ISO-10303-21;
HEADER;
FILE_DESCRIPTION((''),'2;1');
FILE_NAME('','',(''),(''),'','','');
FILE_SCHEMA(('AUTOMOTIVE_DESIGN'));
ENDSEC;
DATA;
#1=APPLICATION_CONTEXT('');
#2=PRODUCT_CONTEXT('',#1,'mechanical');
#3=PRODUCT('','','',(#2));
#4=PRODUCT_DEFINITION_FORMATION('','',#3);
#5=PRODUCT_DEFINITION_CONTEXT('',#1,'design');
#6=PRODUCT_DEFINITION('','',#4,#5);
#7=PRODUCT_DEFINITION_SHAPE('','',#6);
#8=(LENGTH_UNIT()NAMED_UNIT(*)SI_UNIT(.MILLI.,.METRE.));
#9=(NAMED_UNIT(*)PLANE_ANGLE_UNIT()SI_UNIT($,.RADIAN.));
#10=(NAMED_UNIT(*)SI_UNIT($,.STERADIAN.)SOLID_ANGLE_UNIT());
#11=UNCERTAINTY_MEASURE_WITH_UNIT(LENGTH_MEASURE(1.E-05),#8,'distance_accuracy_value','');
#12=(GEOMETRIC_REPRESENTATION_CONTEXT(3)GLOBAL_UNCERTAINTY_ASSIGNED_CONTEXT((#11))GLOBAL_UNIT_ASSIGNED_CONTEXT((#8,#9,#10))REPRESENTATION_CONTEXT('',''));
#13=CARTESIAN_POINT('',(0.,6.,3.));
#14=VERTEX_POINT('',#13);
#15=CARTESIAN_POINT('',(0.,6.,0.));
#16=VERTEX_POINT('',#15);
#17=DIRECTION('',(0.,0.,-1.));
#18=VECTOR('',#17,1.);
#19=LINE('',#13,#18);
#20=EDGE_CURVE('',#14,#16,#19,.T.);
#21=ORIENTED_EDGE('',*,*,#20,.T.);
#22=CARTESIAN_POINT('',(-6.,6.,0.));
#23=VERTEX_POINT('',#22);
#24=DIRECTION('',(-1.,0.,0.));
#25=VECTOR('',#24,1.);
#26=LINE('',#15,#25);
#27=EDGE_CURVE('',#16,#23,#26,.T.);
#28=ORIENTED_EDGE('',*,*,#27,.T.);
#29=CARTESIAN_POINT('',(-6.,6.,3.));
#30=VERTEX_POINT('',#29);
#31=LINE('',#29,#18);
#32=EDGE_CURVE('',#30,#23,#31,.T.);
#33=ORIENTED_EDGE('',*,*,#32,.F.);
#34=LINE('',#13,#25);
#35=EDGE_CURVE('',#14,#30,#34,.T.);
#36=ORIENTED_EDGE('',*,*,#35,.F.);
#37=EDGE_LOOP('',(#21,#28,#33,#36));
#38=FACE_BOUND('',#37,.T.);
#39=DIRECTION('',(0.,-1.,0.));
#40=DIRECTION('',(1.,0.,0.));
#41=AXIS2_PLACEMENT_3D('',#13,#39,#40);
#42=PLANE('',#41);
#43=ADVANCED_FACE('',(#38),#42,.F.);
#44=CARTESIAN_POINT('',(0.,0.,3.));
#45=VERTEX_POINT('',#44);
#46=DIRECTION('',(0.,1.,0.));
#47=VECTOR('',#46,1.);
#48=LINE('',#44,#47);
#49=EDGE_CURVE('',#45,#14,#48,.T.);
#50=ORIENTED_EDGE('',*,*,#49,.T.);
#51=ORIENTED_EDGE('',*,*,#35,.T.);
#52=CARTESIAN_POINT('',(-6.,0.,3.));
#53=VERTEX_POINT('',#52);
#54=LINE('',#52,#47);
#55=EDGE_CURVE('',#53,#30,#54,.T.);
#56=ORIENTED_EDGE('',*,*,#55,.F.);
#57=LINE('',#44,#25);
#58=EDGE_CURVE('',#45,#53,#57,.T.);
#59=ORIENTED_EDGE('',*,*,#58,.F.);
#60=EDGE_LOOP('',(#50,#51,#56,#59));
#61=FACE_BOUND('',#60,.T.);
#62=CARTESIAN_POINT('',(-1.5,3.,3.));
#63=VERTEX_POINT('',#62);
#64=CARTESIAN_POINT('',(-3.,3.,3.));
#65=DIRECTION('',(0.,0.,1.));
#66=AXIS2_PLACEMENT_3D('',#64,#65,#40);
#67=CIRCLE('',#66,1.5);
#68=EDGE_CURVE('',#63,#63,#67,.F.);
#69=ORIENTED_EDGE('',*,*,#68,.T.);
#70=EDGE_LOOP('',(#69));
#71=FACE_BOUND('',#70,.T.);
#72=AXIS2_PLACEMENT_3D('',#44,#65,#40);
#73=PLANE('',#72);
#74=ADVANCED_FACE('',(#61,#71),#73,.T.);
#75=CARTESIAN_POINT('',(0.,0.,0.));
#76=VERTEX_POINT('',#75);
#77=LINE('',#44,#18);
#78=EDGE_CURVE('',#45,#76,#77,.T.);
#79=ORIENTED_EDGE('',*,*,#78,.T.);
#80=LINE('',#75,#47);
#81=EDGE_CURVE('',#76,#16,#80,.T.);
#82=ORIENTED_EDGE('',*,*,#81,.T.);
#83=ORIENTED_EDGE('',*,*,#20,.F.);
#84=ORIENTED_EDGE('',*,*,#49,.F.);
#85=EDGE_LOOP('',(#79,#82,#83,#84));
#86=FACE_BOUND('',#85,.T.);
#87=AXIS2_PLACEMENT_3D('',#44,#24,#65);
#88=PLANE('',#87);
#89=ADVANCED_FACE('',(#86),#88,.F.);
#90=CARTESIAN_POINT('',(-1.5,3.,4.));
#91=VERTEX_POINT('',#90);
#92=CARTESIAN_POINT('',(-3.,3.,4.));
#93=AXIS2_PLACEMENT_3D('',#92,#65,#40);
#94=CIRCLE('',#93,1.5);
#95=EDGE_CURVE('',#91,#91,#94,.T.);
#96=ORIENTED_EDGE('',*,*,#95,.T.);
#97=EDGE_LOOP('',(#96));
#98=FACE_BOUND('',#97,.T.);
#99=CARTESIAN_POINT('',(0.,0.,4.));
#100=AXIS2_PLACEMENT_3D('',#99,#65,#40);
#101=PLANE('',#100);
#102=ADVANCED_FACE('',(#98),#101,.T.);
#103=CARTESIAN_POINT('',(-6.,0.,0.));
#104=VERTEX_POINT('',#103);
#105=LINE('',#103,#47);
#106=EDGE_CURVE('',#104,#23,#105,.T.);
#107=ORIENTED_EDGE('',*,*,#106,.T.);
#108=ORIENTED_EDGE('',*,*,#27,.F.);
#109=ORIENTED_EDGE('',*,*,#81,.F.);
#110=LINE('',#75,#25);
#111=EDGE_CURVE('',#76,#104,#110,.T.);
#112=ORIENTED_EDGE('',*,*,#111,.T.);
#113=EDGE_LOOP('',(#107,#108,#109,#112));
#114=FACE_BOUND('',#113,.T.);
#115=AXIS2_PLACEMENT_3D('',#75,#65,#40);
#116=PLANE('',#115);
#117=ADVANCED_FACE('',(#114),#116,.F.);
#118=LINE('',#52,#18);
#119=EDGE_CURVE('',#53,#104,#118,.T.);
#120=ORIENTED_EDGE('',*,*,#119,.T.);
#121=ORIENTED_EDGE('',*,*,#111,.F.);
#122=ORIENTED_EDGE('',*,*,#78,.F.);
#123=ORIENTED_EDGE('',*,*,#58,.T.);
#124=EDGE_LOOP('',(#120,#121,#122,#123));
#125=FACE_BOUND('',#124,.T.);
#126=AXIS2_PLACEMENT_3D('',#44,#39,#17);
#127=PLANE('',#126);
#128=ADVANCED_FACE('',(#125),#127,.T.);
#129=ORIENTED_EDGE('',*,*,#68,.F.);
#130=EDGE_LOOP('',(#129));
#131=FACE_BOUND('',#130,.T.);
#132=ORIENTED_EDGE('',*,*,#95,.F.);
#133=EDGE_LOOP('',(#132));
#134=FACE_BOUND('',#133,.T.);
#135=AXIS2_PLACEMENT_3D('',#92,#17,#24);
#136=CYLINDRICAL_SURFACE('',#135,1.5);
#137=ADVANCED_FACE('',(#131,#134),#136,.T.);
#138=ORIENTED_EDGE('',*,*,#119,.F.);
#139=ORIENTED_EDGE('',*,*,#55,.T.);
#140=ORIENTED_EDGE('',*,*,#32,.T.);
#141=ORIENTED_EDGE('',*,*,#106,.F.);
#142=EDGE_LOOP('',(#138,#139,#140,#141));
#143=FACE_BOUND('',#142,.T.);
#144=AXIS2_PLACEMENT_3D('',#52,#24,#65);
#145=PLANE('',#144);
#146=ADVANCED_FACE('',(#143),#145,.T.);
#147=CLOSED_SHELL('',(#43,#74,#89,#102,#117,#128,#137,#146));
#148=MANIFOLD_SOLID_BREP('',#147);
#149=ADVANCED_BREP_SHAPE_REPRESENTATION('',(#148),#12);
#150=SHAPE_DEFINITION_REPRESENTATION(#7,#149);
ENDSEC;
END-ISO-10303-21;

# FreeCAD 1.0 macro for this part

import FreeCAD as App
import Part
import Sketcher
from FreeCAD import Vector
Q = App.Units.Quantity


def add_polygon(sketch, points):
    """Adds a closed chain of lines whose ends are joined by coincident constraints."""
    first, n = sketch.GeometryCount, len(points)
    for a, b in zip(points, points[1:] + points[:1]):
        sketch.addGeometry(Part.LineSegment(App.Vector(*a, 0), App.Vector(*b, 0)), False)
    for i in range(n):
        sketch.addConstraint(Sketcher.Constraint("Coincident", first + i, 2, first + (i + 1) % n, 1))

doc = App.newDocument("Part")
body = doc.addObject("PartDesign::Body", "Body")

sketch1 = body.newObject("Sketcher::SketchObject", "Sketch")
sketch1.AttachmentSupport = (doc.getObject("XY_Plane"), [""])
sketch1.MapMode = "FlatFace"
add_polygon(sketch1, [(-6, 6), (-6, 0), (0, 0), (0, 6)])
sketch1.addConstraint([
    Sketcher.Constraint("Vertical", 0),
    Sketcher.Constraint("Horizontal", 1),
    Sketcher.Constraint("Vertical", 2),
    Sketcher.Constraint("Horizontal", 3),
    Sketcher.Constraint("Coincident", 1, 2, -1, 1),
    Sketcher.Constraint("Equal", 3, 0),
    Sketcher.Constraint("DistanceX", 1, 1, 1, 2, Q("6 mm")),
])
pad1 = body.newObject("PartDesign::Pad", "Pad")
pad1.Profile = sketch1
pad1.Length = 3

sketch2 = body.newObject("Sketcher::SketchObject", "Sketch001")
sketch2.AttachmentSupport = (doc.getObject("XY_Plane"), [""])
sketch2.MapMode = "FlatFace"
sketch2.addGeometry(Part.Circle(Vector(-3, 3, 0), Vector(0, 0, 1), 1.5), False)
sketch2.addConstraint([
    Sketcher.Constraint("Diameter", 0, Q("3 mm")),
    Sketcher.Constraint("DistanceX", 0, 3, -1, 1, Q("3 mm")),
    Sketcher.Constraint("DistanceY", -1, 1, 0, 3, Q("3 mm")),
])
pad2 = body.newObject("PartDesign::Pad", "Pad001")
pad2.Profile = sketch2
pad2.Length = 4

doc.recompute()
